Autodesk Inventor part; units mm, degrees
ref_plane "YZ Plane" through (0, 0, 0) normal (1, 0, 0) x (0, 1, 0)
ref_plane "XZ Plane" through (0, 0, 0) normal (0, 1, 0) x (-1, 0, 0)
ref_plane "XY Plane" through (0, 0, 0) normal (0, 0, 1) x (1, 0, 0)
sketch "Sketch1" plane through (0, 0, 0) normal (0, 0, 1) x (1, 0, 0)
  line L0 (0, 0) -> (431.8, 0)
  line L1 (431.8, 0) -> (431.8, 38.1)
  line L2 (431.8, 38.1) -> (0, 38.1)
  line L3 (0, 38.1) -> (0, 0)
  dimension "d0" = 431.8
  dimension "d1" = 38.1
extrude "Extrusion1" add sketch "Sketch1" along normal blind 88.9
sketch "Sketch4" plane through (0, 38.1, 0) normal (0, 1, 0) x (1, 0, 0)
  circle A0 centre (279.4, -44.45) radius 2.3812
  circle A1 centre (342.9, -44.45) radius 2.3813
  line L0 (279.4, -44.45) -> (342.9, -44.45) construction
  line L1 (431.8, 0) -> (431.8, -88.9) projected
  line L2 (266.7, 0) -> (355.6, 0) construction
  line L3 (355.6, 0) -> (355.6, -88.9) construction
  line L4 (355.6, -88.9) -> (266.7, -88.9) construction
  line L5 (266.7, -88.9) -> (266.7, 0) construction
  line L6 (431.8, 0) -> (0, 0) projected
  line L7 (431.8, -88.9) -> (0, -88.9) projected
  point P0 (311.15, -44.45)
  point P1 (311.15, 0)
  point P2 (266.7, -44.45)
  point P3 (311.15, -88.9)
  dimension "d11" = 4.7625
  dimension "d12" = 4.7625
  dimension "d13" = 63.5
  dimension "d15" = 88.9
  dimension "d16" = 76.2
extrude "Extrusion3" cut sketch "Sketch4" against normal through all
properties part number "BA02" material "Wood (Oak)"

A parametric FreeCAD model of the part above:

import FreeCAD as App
import Part
import Sketcher

V = App.Vector
Q = App.Units.Quantity

doc = App.newDocument("Part")
params = doc.addObject("Spreadsheet::Sheet", "Params")
for row, (alias, value) in enumerate([
    ("sketch1_width", "17 in"),
    ("sketch1_height", "1.5 in"),
    ("pad1_length", "3.5 in"),
    ("sketch2_diameter", "0.1875 in"),
], start=1):
    params.set(f"A{row}", alias)
    params.set(f"B{row}", "=" + value)
    params.setAlias(f"B{row}", alias)

body = doc.addObject("PartDesign::Body", "Body")

sketch1 = body.newObject("Sketcher::SketchObject", "Sketch")
sketch1.AttachmentSupport = (doc.getObject("XY_Plane"), [""])
sketch1.MapMode = "FlatFace"
sketch1.addGeometry(Part.LineSegment(V(0, 38, 0), V(0, 0, 0)), False)
sketch1.addGeometry(Part.LineSegment(V(0, 0, 0), V(432, 0, 0)), False)
sketch1.addGeometry(Part.LineSegment(V(432, 0, 0), V(432, 38, 0)), False)
sketch1.addGeometry(Part.LineSegment(V(432, 38, 0), V(0, 38, 0)), False)
sketch1.addConstraint(Sketcher.Constraint("Coincident", 0, 2, 1, 1))
sketch1.addConstraint(Sketcher.Constraint("Coincident", 1, 2, 2, 1))
sketch1.addConstraint(Sketcher.Constraint("Coincident", 2, 2, 3, 1))
sketch1.addConstraint(Sketcher.Constraint("Coincident", 3, 2, 0, 1))
sketch1.addConstraint(Sketcher.Constraint("Vertical", 0))
sketch1.addConstraint(Sketcher.Constraint("Horizontal", 1))
sketch1.addConstraint(Sketcher.Constraint("Vertical", 2))
sketch1.addConstraint(Sketcher.Constraint("Horizontal", 3))
sketch1.addConstraint(Sketcher.Constraint("Coincident", 0, 2, -1, 1))
sketch1.addConstraint(Sketcher.Constraint("DistanceX", 1, 1, 1, 2, Q("17 in")))
sketch1.addConstraint(Sketcher.Constraint("DistanceY", 0, 2, 0, 1, Q("1.5 in")))
sketch1.setExpression("Constraints[9]", "Params.sketch1_width")
sketch1.setExpression("Constraints[10]", "Params.sketch1_height")
pad1 = body.newObject("PartDesign::Pad", "Pad")
pad1.Profile = sketch1
pad1.setExpression("Length", "Params.pad1_length")

sketch2 = body.newObject("Sketcher::SketchObject", "Sketch001")
sketch2.AttachmentSupport = (doc.getObject("XZ_Plane"), [""])
sketch2.MapMode = "FlatFace"
sketch2.AttachmentOffset = App.Placement(V(0, 0, -1.5 * 25.4), App.Rotation())
sketch2.addGeometry(Part.Circle(V(279.4, 44.5, 0), V(0, 0, 1), 2.4), False)
sketch2.addGeometry(Part.Circle(V(342.9, 44.5, 0), V(0, 0, 1), 2.4), False)
sketch2.addConstraint(Sketcher.Constraint("Equal", 0, 1))
sketch2.addConstraint(Sketcher.Constraint("Horizontal", 0, 3, 1, 3))
sketch2.addConstraint(Sketcher.Constraint("Diameter", 0, Q("0.1875 in")))
sketch2.addConstraint(Sketcher.Constraint("DistanceX", 0, 3, 1, 3, Q("2.5 in")))
sketch2.addConstraint(Sketcher.Constraint("DistanceX", -1, 1, 0, 3, Q("11 in")))
sketch2.addConstraint(Sketcher.Constraint("DistanceY", -1, 1, 0, 3, Q("1.75 in")))
sketch2.setExpression("Constraints[2]", "Params.sketch2_diameter")
pocket1 = body.newObject("PartDesign::Pocket", "Pocket")
pocket1.Profile = sketch2
pocket1.Type = "ThroughAll"
pocket1.Reversed = True

doc.recompute()
